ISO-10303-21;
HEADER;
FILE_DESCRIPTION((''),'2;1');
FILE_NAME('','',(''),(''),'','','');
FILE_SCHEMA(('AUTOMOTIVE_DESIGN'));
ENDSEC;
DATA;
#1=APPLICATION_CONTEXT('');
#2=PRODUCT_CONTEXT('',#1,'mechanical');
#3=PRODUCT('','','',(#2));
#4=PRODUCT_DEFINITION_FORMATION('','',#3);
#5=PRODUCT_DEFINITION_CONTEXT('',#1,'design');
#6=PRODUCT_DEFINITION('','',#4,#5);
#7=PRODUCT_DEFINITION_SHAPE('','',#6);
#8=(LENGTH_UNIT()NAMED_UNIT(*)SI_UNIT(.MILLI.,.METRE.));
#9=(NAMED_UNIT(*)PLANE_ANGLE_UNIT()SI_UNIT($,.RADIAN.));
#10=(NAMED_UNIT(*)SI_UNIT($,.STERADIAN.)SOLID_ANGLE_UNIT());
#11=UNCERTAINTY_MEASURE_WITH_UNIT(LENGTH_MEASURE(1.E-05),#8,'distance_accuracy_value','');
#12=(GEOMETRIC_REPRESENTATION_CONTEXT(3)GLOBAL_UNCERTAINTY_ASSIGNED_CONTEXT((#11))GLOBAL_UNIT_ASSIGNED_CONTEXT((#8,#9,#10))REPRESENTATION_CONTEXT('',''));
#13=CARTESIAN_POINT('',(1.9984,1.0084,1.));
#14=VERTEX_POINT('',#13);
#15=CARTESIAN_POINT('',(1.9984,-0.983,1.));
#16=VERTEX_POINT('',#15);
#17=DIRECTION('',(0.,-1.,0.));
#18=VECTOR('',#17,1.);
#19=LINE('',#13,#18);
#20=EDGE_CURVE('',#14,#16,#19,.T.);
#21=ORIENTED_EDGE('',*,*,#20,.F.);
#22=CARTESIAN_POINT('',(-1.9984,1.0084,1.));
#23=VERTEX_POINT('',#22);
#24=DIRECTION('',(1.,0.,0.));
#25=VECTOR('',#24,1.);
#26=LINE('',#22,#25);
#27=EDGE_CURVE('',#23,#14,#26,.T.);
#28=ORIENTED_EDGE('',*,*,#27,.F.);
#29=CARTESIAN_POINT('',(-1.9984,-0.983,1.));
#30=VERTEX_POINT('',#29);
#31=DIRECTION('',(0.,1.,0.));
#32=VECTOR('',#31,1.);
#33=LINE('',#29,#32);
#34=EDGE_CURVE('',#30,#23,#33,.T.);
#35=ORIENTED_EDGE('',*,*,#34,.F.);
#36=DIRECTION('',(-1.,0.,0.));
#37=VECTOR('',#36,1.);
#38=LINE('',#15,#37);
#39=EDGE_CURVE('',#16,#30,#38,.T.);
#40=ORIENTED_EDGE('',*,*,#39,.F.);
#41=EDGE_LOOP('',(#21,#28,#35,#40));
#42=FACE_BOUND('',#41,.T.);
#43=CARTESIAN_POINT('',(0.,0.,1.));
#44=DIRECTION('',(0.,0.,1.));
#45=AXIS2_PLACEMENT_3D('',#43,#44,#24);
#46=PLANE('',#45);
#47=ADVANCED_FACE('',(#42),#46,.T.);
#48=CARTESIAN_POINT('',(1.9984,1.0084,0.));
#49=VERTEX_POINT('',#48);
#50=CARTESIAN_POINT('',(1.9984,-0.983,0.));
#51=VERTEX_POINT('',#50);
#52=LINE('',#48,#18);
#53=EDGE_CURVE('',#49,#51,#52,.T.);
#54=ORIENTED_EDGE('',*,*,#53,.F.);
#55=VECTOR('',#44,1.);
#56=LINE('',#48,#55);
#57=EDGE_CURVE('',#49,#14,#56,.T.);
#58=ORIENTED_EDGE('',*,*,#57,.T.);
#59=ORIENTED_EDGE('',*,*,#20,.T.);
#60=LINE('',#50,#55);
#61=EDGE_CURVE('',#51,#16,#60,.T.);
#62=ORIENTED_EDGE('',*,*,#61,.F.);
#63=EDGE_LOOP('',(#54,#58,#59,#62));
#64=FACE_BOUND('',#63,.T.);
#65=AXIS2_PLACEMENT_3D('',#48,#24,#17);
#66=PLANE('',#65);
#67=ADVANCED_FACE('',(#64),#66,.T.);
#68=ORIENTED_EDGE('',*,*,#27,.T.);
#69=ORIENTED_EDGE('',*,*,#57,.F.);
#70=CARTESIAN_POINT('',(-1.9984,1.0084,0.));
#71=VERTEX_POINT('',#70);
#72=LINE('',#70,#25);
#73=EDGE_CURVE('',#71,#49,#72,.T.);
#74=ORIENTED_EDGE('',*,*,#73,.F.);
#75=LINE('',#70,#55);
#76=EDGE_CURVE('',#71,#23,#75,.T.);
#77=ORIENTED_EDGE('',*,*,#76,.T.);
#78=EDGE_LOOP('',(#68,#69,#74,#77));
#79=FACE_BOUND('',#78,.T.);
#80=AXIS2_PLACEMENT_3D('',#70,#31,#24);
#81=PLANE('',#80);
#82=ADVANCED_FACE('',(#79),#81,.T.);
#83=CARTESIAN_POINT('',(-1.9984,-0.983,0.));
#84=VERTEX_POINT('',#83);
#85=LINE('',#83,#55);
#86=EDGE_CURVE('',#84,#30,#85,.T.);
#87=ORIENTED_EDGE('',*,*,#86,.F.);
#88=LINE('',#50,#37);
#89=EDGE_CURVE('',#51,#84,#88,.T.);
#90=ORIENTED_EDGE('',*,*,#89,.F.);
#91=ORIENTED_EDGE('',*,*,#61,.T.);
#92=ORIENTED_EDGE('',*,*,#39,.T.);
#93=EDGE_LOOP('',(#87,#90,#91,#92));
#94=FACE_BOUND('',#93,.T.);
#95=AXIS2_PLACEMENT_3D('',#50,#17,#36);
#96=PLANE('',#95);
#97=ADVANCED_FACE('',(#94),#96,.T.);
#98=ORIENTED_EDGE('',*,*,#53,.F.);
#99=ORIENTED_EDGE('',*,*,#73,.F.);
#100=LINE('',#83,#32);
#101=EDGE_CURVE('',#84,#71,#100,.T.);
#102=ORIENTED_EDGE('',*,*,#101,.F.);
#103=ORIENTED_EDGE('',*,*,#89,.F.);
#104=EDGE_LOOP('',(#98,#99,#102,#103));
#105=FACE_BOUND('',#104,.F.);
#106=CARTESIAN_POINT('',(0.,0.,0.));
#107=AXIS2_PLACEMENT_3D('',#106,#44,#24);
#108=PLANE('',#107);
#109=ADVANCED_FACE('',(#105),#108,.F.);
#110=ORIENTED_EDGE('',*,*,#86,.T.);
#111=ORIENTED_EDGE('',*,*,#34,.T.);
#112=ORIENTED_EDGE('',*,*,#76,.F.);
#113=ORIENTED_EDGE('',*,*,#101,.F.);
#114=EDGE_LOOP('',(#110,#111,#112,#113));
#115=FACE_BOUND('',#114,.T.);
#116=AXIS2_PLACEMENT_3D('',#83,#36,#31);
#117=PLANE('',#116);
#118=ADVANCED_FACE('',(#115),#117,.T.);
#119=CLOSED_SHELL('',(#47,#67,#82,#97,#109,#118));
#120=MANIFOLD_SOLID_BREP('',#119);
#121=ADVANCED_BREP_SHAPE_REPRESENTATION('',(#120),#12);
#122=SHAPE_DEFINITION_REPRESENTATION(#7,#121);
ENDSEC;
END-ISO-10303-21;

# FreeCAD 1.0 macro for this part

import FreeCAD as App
import Part
import Sketcher

V = App.Vector
Q = App.Units.Quantity

doc = App.newDocument("Part")
body = doc.addObject("PartDesign::Body", "Body")

sketch1 = doc.addObject("Sketcher::SketchObject", "Sketch")
body.addObject(sketch1)
sketch1.AttachmentSupport = (doc.XY_Plane, [""])
sketch1.MapMode = "FlatFace"
sketch1.addGeometry([
    Part.LineSegment(V(1.9984, 1.0084, 0), V(-1.9984, 1.0084, 0)),
    Part.LineSegment(V(-1.9984, 1.0084, 0), V(-1.9984, -0.983, 0)),
    Part.LineSegment(V(-1.9984, -0.983, 0), V(1.9984, -0.983, 0)),
    Part.LineSegment(V(1.9984, -0.983, 0), V(1.9984, 1.0084, 0)),
], False)
sketch1.addConstraint([
    Sketcher.Constraint("Coincident", 0, 2, 1, 1),
    Sketcher.Constraint("Coincident", 1, 2, 2, 1),
    Sketcher.Constraint("Coincident", 2, 2, 3, 1),
    Sketcher.Constraint("Coincident", 3, 2, 0, 1),
    Sketcher.Constraint("Horizontal", 0),
    Sketcher.Constraint("Vertical", 1),
    Sketcher.Constraint("Horizontal", 2),
    Sketcher.Constraint("Vertical", 3),
    Sketcher.Constraint("DistanceX", 0, 2, 0, 1, Q("3.9968 mm")),
    Sketcher.Constraint("DistanceY", 1, 2, 1, 1, Q("1.9914 mm")),
    Sketcher.Constraint("DistanceY", 1, 2, -1, 1, Q("0.983 mm")),
    Sketcher.Constraint("DistanceX", 0, 2, -1, 1, Q("1.9984 mm")),
])
pad1 = doc.addObject("PartDesign::Pad", "Pad")
body.addObject(pad1)
pad1.Profile = sketch1
pad1.Length = 1

doc.recompute()
